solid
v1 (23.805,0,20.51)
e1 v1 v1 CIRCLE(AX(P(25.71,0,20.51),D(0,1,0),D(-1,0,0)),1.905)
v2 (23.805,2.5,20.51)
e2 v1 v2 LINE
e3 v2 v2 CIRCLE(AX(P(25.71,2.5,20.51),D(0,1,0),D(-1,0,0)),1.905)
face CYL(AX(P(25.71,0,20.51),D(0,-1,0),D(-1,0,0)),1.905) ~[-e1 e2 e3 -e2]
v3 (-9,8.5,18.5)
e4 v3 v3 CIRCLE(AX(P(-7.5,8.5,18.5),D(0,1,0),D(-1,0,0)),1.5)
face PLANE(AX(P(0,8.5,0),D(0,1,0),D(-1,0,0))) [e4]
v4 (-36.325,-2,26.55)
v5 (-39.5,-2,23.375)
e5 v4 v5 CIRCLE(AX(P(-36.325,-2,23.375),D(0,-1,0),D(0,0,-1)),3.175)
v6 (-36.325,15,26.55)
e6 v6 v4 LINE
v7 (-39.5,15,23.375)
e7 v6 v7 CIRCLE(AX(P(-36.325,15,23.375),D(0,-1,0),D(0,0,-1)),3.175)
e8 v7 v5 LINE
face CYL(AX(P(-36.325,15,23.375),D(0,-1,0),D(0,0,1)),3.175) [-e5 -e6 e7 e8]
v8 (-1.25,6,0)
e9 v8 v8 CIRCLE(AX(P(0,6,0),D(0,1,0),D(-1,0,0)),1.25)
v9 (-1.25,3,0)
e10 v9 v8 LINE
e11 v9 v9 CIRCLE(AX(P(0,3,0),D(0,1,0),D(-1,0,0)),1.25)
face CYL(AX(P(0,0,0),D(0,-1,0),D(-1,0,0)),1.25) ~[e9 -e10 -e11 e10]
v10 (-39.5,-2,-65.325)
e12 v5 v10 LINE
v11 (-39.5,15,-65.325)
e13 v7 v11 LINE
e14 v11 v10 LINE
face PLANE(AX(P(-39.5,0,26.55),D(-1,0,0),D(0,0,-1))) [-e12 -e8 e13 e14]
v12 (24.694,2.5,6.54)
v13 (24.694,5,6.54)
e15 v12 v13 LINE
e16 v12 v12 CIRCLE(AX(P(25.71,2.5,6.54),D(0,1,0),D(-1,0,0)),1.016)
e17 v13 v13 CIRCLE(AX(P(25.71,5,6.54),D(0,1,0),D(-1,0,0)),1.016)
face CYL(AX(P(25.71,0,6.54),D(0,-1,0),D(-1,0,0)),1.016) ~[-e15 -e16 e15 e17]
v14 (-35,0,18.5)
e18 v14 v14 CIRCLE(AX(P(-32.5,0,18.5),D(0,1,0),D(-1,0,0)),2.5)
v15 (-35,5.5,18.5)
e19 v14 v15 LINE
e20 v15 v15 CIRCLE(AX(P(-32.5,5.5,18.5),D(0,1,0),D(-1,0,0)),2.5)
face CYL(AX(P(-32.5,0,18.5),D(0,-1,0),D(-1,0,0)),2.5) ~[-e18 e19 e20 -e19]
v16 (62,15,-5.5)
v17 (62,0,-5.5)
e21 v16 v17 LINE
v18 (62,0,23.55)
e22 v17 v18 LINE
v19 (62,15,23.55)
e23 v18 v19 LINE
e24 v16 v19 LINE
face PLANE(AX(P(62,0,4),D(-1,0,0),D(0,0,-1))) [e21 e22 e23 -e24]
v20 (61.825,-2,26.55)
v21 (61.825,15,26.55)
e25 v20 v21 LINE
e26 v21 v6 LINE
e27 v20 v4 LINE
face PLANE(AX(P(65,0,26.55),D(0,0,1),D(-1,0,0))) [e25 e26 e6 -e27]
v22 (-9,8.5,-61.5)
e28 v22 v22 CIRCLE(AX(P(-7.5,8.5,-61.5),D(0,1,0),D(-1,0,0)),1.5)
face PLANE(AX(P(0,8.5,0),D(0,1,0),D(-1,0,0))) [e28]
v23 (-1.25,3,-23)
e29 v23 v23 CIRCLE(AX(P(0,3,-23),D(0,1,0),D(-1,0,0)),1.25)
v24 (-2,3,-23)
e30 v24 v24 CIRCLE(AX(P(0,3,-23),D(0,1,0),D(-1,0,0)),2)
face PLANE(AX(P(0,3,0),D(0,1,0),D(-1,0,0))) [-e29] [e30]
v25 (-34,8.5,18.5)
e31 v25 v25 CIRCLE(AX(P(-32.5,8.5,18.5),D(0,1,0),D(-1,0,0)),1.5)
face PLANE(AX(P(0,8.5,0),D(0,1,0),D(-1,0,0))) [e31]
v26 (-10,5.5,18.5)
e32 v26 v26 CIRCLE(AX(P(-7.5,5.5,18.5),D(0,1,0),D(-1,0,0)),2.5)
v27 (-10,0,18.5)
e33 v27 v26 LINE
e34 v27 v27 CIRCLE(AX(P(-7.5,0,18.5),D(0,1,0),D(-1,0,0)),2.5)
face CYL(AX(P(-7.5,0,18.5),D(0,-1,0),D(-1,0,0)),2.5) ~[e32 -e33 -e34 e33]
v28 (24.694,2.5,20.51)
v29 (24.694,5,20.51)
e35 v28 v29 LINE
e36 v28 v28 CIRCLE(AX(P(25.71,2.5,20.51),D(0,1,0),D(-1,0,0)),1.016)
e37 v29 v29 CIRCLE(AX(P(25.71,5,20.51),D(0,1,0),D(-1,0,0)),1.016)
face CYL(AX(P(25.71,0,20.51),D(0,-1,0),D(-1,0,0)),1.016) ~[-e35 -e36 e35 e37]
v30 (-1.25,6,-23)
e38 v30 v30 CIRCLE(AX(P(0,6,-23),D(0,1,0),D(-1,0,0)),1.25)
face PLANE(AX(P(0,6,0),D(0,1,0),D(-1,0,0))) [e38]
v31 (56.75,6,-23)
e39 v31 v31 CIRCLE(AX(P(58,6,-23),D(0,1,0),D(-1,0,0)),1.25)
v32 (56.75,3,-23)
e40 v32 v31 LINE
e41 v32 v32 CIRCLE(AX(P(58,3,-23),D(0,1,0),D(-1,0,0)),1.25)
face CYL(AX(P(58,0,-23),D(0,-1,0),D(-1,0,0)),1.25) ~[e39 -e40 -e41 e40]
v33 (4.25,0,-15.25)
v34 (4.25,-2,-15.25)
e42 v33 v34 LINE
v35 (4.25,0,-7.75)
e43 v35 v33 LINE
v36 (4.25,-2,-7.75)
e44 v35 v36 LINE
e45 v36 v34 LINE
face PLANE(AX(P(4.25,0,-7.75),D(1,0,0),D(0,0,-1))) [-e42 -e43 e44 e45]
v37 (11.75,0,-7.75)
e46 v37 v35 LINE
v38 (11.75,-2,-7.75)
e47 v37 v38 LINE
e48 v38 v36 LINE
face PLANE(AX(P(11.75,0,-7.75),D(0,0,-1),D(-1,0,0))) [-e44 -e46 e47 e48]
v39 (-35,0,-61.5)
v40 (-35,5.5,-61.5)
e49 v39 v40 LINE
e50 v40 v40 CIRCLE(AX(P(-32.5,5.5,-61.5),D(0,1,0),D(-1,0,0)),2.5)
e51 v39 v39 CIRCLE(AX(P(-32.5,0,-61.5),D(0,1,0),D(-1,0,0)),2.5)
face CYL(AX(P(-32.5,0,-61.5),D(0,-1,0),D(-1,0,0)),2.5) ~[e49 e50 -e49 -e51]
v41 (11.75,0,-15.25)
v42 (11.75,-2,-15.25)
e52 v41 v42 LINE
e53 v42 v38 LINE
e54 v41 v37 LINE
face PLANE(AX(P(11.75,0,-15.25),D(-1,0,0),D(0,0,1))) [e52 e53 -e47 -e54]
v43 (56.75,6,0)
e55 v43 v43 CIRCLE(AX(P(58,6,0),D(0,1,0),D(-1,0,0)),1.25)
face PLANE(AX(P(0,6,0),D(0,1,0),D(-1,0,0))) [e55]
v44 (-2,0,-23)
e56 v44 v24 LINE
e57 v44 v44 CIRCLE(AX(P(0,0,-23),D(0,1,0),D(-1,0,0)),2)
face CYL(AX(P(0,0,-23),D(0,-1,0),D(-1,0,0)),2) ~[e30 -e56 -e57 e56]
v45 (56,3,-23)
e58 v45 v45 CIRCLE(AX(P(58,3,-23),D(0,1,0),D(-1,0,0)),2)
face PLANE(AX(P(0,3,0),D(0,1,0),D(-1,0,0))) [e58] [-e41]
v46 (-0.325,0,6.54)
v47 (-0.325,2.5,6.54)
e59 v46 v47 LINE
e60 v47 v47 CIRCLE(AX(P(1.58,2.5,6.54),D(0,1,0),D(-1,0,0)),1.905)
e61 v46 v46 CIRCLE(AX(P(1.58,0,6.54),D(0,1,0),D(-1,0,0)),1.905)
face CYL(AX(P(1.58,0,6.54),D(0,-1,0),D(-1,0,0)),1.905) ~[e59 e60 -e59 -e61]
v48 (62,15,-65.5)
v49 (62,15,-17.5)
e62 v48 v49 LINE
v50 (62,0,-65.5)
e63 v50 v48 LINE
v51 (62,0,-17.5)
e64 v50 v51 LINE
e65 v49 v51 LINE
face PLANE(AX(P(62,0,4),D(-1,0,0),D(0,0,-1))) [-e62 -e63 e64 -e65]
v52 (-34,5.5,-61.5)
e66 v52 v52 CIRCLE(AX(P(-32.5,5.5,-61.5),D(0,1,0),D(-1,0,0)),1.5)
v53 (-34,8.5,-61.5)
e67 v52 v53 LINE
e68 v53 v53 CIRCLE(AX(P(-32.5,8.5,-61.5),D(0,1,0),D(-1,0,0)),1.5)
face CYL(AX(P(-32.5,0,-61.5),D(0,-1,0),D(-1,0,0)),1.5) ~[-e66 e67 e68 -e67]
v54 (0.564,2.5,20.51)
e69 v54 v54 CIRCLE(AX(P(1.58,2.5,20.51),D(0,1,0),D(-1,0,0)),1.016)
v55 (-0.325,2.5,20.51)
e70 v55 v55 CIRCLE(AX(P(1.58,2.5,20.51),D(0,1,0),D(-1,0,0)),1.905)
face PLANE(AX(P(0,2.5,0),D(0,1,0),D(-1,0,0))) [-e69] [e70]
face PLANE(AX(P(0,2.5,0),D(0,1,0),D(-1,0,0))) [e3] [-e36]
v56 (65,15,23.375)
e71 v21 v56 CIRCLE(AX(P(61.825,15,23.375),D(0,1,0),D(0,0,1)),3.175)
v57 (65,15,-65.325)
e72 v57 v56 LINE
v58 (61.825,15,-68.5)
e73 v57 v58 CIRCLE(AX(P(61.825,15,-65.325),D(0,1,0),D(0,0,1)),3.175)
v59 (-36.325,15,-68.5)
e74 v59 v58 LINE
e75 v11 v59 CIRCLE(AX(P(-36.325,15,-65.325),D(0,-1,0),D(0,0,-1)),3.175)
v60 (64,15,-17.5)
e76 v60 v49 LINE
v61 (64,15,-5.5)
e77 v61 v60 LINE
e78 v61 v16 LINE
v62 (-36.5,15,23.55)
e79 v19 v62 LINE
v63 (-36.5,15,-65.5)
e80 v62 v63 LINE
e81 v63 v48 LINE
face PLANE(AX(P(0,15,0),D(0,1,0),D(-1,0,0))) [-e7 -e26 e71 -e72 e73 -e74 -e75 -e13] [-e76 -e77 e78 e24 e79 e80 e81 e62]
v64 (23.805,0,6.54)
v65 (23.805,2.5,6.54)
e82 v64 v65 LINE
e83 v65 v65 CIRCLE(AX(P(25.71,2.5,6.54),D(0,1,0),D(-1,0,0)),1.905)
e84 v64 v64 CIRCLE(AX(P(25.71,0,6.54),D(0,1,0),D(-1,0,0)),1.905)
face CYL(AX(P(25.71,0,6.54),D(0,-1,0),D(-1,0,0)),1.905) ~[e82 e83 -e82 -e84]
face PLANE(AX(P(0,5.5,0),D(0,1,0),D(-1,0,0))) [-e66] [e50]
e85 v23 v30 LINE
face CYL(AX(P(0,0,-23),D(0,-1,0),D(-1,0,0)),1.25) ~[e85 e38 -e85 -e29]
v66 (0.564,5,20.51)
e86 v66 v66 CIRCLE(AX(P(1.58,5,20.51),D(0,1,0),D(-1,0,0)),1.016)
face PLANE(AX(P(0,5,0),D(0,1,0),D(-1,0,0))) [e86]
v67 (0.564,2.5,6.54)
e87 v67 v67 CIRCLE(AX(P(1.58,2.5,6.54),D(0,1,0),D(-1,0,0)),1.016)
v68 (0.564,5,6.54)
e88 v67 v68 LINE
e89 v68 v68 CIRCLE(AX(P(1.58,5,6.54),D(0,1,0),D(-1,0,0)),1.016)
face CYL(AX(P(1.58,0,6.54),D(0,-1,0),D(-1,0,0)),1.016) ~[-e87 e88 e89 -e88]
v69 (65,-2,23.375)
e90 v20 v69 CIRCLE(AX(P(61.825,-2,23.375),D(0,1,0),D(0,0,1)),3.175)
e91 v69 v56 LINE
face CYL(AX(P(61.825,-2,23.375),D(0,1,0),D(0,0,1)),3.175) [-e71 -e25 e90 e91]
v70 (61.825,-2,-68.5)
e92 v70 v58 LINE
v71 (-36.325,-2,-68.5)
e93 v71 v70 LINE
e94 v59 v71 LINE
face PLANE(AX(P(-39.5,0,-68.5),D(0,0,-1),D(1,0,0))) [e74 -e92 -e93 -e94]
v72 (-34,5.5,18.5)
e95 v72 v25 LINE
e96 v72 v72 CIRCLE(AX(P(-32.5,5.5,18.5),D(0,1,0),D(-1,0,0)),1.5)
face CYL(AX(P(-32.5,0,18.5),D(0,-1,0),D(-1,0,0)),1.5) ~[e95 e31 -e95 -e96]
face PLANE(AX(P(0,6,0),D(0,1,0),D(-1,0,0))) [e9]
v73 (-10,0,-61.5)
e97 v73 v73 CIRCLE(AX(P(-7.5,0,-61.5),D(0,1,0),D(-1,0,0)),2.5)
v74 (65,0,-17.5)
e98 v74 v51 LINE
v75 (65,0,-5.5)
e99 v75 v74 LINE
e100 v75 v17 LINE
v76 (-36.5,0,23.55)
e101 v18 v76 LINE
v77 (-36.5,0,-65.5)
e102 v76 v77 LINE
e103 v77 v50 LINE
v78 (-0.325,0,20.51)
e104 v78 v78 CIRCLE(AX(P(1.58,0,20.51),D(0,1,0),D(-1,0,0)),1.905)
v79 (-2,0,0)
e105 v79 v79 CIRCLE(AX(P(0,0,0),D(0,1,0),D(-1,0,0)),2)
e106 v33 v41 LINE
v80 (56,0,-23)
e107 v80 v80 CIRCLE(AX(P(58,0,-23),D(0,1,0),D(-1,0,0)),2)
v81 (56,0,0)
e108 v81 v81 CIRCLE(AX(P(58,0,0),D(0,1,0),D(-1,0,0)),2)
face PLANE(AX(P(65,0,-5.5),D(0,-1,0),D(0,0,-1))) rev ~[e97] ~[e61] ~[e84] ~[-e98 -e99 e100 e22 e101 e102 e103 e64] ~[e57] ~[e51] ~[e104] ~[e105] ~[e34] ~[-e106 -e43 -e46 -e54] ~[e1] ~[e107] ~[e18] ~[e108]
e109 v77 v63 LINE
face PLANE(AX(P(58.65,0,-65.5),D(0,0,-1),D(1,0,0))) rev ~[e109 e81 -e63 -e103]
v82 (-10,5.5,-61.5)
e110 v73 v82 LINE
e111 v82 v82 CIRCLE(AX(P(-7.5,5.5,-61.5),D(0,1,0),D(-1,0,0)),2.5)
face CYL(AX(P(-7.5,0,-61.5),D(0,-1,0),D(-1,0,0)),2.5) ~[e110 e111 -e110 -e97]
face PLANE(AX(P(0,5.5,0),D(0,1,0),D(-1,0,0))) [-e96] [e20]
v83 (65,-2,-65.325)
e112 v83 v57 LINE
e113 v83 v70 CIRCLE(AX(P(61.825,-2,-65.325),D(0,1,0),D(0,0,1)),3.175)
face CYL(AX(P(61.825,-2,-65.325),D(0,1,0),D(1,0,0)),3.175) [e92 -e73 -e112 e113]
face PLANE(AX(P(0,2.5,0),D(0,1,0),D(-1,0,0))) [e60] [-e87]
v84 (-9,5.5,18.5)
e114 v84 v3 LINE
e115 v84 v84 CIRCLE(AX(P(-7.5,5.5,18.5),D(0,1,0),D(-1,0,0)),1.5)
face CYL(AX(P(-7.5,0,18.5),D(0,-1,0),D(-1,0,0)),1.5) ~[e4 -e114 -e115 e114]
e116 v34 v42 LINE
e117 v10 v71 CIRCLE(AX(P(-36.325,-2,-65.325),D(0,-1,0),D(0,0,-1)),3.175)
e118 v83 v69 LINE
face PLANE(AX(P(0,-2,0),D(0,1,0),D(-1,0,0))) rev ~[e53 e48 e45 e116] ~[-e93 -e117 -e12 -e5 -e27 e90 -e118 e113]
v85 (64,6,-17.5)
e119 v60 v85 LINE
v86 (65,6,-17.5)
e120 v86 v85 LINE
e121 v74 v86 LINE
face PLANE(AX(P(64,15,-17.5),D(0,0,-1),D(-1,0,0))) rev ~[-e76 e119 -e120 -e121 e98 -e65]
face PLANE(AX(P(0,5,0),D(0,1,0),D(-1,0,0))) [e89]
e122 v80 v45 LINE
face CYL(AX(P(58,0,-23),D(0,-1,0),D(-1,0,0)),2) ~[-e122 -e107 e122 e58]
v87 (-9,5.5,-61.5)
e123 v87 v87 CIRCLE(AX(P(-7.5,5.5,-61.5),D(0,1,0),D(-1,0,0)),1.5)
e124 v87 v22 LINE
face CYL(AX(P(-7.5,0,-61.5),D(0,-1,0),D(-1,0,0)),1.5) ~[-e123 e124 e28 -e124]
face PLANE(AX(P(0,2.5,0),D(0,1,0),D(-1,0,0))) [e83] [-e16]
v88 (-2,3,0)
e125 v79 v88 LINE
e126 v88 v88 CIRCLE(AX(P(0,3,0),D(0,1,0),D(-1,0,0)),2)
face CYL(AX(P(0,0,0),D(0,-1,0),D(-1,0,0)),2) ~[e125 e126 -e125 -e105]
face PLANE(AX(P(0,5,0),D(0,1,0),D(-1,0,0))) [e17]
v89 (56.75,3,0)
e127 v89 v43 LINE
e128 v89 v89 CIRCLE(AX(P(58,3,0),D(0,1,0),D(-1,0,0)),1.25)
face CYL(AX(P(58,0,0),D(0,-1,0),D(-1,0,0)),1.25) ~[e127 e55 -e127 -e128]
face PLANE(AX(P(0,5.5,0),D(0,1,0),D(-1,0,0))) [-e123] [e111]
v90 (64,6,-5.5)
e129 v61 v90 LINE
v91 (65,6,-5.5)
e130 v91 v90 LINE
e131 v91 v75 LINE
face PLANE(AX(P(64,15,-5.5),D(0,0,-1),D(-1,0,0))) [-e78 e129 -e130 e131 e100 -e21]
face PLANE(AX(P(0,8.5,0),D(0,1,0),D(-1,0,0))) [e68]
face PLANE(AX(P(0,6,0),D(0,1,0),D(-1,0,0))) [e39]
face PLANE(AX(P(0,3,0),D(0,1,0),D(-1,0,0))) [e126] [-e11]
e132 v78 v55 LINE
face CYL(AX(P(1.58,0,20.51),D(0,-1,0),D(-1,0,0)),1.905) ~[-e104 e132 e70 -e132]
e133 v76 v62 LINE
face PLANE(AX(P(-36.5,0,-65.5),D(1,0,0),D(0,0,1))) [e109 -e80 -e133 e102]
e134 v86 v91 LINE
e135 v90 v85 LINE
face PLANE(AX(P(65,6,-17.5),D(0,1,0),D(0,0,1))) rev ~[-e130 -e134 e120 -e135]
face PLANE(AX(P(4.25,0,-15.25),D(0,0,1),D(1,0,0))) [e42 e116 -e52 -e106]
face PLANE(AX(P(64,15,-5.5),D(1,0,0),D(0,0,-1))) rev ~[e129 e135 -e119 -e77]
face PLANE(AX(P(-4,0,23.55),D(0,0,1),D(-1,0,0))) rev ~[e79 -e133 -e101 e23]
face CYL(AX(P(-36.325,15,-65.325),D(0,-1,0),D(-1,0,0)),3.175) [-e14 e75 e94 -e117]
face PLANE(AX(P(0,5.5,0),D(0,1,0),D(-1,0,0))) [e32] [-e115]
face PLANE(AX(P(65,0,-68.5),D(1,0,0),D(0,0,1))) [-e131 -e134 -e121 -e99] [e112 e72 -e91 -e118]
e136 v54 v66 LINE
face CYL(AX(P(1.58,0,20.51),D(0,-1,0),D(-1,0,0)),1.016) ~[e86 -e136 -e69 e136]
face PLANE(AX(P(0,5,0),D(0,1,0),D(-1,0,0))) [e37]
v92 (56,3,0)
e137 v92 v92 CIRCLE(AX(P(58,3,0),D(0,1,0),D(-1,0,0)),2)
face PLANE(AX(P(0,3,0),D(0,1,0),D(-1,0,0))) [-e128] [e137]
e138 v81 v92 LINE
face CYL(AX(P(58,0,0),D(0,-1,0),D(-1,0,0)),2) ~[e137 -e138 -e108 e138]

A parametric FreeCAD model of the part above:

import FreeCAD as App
import Part
import Sketcher


def edges_at(feature, points):
    """Names of the edges that pass closest to the given points."""
    edges = feature.Shape.Edges
    near = lambda p: min(range(len(edges)), key=lambda i: edges[i].distToShape(Part.Vertex(*p))[0])
    return sorted({f"Edge{near(p) + 1}" for p in points})

doc = App.newDocument("Part")
body = doc.addObject("PartDesign::Body", "Body")

# Sketch on XZ plane
sketch1 = body.newObject("Sketcher::SketchObject", "Sketch")
sketch1.AttachmentSupport = (doc.getObject("XZ_Plane"), [""])
sketch1.MapMode = "FlatFace"
sketch1.addGeometry([
    Part.LineSegment(App.Vector(-40, 27, 0), App.Vector(65, 27, 0)),
    Part.LineSegment(App.Vector(65, 27, 0), App.Vector(65, -68, 0)),
    Part.LineSegment(App.Vector(65, -68, 0), App.Vector(-40, -68, 0)),
    Part.LineSegment(App.Vector(-40, -68, 0), App.Vector(-40, 27, 0)),
], False)
sketch1.addConstraint([
    Sketcher.Constraint("Coincident", 0, 2, 1, 1),
    Sketcher.Constraint("Coincident", 1, 2, 2, 1),
    Sketcher.Constraint("Coincident", 2, 2, 3, 1),
    Sketcher.Constraint("Coincident", 3, 2, 0, 1),
    Sketcher.Constraint("Horizontal", 0),
    Sketcher.Constraint("Vertical", 1),
    Sketcher.Constraint("Horizontal", 2),
    Sketcher.Constraint("Vertical", 3),
    Sketcher.Constraint("DistanceX", -1, 1, 0, 2, 65.0),
    Sketcher.Constraint("DistanceX", 0, 1, 0, 2, 104.5),
    Sketcher.Constraint("DistanceY", 1, 2, 1, 1, 95.05),
    Sketcher.Constraint("DistanceY", 1, 2, -1, 1, 68.5),
])
pad1 = body.newObject("PartDesign::Pad", "Pad")
pad1.Profile = sketch1
pad1.Length = 2

# Sketch on XZ plane
sketch2 = body.newObject("Sketcher::SketchObject", "Sketch001")
sketch2.AttachmentSupport = (doc.getObject("XZ_Plane"), [""])
sketch2.MapMode = "FlatFace"
sketch2.addGeometry([
    Part.LineSegment(App.Vector(-40, 27, 0), App.Vector(65, 27, 0)),  # 0
    Part.LineSegment(App.Vector(65, 27, 0), App.Vector(65, -68, 0)),  # 1
    Part.LineSegment(App.Vector(65, -68, 0), App.Vector(-40, -68, 0)),  # 2
    Part.LineSegment(App.Vector(-40, -68, 0), App.Vector(-40, 27, 0)),  # 3
    Part.LineSegment(App.Vector(62, -66, 0), App.Vector(62, 24, 0)),  # 4
    Part.LineSegment(App.Vector(62, 24, 0), App.Vector(-36, 24, 0)),  # 5
    Part.LineSegment(App.Vector(-36, 24, 0), App.Vector(-36, -66, 0)),  # 6
    Part.LineSegment(App.Vector(-36, -66, 0), App.Vector(62, -66, 0)),  # 7
], False)
sketch2.addConstraint([
    Sketcher.Constraint("Coincident", 0, 2, 1, 1),
    Sketcher.Constraint("Coincident", 1, 2, 2, 1),
    Sketcher.Constraint("Coincident", 2, 2, 3, 1),
    Sketcher.Constraint("Coincident", 3, 2, 0, 1),
    Sketcher.Constraint("Coincident", 4, 2, 5, 1),
    Sketcher.Constraint("Coincident", 5, 2, 6, 1),
    Sketcher.Constraint("Coincident", 6, 2, 7, 1),
    Sketcher.Constraint("Coincident", 7, 2, 4, 1),
    Sketcher.Constraint("Horizontal", 0),
    Sketcher.Constraint("Vertical", 1),
    Sketcher.Constraint("Horizontal", 2),
    Sketcher.Constraint("Vertical", 3),
    Sketcher.Constraint("Vertical", 4),
    Sketcher.Constraint("Horizontal", 5),
    Sketcher.Constraint("Vertical", 6),
    Sketcher.Constraint("Horizontal", 7),
    Sketcher.Constraint("DistanceX", -1, 1, 0, 2, 65.0),
    Sketcher.Constraint("DistanceX", 4, 2, 0, 2, 3.0),
    Sketcher.Constraint("DistanceY", 4, 2, 0, 2, 3.0),
    Sketcher.Constraint("DistanceX", 3, 2, 5, 2, 3.0),
    Sketcher.Constraint("DistanceY", 2, 2, 6, 2, 3.0),
    Sketcher.Constraint("DistanceX", 0, 1, 0, 2, 104.5),
    Sketcher.Constraint("DistanceY", 1, 2, 1, 1, 95.05),
    Sketcher.Constraint("DistanceY", 1, 2, -1, 1, 68.5),
])
pad2 = body.newObject("PartDesign::Pad", "Pad001")
pad2.Profile = sketch2
pad2.Length = 15
pad2.Reversed = True

# Sketch on XZ plane
sketch3 = body.newObject("Sketcher::SketchObject", "Sketch002")
sketch3.AttachmentSupport = (doc.getObject("XZ_Plane"), [""])
sketch3.MapMode = "FlatFace"
sketch3.addGeometry([
    Part.LineSegment(App.Vector(4, -8, 0), App.Vector(12, -8, 0)),
    Part.LineSegment(App.Vector(12, -8, 0), App.Vector(12, -15, 0)),
    Part.LineSegment(App.Vector(12, -15, 0), App.Vector(4, -15, 0)),
    Part.LineSegment(App.Vector(4, -15, 0), App.Vector(4, -8, 0)),
], False)
sketch3.addConstraint([
    Sketcher.Constraint("Coincident", 0, 2, 1, 1),
    Sketcher.Constraint("Coincident", 1, 2, 2, 1),
    Sketcher.Constraint("Coincident", 2, 2, 3, 1),
    Sketcher.Constraint("Coincident", 3, 2, 0, 1),
    Sketcher.Constraint("Horizontal", 0),
    Sketcher.Constraint("Vertical", 1),
    Sketcher.Constraint("Horizontal", 2),
    Sketcher.Constraint("Vertical", 3),
    Sketcher.Constraint("Equal", 2, 1),
    Sketcher.Constraint("DistanceX", 0, 1, 0, 2, 7.5),
    Sketcher.Constraint("DistanceX", -1, 1, 0, 2, 11.75),
    Sketcher.Constraint("DistanceY", 0, 2, -1, 1, 7.75),
])
pocket1 = body.newObject("PartDesign::Pocket", "Pocket")
pocket1.Profile = sketch3
pocket1.Length = 2
pocket1.Reversed = True

# Sketch on XZ plane
sketch4 = body.newObject("Sketcher::SketchObject", "Sketch003")
sketch4.AttachmentSupport = (doc.getObject("XZ_Plane"), [""])
sketch4.MapMode = "FlatFace"
sketch4.addGeometry([
    Part.Circle(App.Vector(-32.5, 18.5, 0), App.Vector(0, 0, 1), 2.5),  # 0
    Part.Circle(App.Vector(-32.5, 18.5, 0), App.Vector(0, 0, 1), 1.5),  # 1
    Part.Circle(App.Vector(-7.5, 18.5, 0), App.Vector(0, 0, 1), 2.5),  # 2
    Part.Circle(App.Vector(-7.5, 18.5, 0), App.Vector(0, 0, 1), 1.5),  # 3
    Part.Circle(App.Vector(-32.5, -61.5, 0), App.Vector(0, 0, 1), 2.5),  # 4
    Part.Circle(App.Vector(-32.5, -61.5, 0), App.Vector(0, 0, 1), 1.5),  # 5
    Part.Circle(App.Vector(-7.5, -61.5, 0), App.Vector(0, 0, 1), 2.5),  # 6
    Part.Circle(App.Vector(-7.5, -61.5, 0), App.Vector(0, 0, 1), 1.5),  # 7
], False)
sketch4.addConstraint([
    Sketcher.Constraint("Coincident", 1, 3, 0, 3),
    Sketcher.Constraint("Coincident", 3, 3, 2, 3),
    Sketcher.Constraint("Coincident", 5, 3, 4, 3),
    Sketcher.Constraint("Coincident", 7, 3, 6, 3),
    Sketcher.Constraint("Equal", 0, 2),
    Sketcher.Constraint("Equal", 1, 3),
    Sketcher.Constraint("Equal", 2, 4),
    Sketcher.Constraint("Equal", 3, 5),
    Sketcher.Constraint("Equal", 4, 6),
    Sketcher.Constraint("Equal", 5, 7),
    Sketcher.Constraint("Horizontal", 1, 3, 2, 3),
    Sketcher.Constraint("Horizontal", 5, 3, 6, 3),
    Sketcher.Constraint("Vertical", 1, 3, 4, 3),
    Sketcher.Constraint("Vertical", 3, 3, 6, 3),
    Sketcher.Constraint("Diameter", 0, 5.0),
    Sketcher.Constraint("Diameter", 1, 3.0),
    Sketcher.Constraint("DistanceX", 0, 3, 2, 3, 25.0),
    Sketcher.Constraint("DistanceY", 4, 3, 0, 3, 80.0),
    Sketcher.Constraint("DistanceX", 2, 3, -1, 1, 7.5),
    Sketcher.Constraint("DistanceY", -1, 1, 0, 3, 18.5),
])
pad3 = body.newObject("PartDesign::Pad", "Pad002")
pad3.Profile = sketch4
pad3.Length = 5.5
pad3.Reversed = True

# Sketch on XZ plane
sketch5 = body.newObject("Sketcher::SketchObject", "Sketch004")
sketch5.AttachmentSupport = (doc.getObject("XZ_Plane"), [""])
sketch5.MapMode = "FlatFace"
sketch5.addGeometry([
    Part.Circle(App.Vector(-32.5, 18.5, 0), App.Vector(0, 0, 1), 1.5),
    Part.Circle(App.Vector(-7.5, 18.5, 0), App.Vector(0, 0, 1), 1.5),
    Part.Circle(App.Vector(-7.5, -61.5, 0), App.Vector(0, 0, 1), 1.5),
    Part.Circle(App.Vector(-32.5, -61.5, 0), App.Vector(0, 0, 1), 1.5),
], False)
sketch5.addConstraint([
    Sketcher.Constraint("Equal", 0, 1),
    Sketcher.Constraint("Equal", 1, 2),
    Sketcher.Constraint("Equal", 2, 3),
    Sketcher.Constraint("Horizontal", 0, 3, 1, 3),
    Sketcher.Constraint("Horizontal", 2, 3, 3, 3),
    Sketcher.Constraint("Vertical", 1, 3, 2, 3),
    Sketcher.Constraint("Vertical", 0, 3, 3, 3),
    Sketcher.Constraint("Diameter", 0, 3.0),
    Sketcher.Constraint("DistanceX", 0, 3, 1, 3, 25.0),
    Sketcher.Constraint("DistanceY", 2, 3, 1, 3, 80.0),
    Sketcher.Constraint("DistanceX", 1, 3, -1, 1, 7.5),
    Sketcher.Constraint("DistanceY", -1, 1, 0, 3, 18.5),
])
pad4 = body.newObject("PartDesign::Pad", "Pad003")
pad4.Profile = sketch5
pad4.Length = 8.5
pad4.Reversed = True

# Sketch on XZ plane
sketch6 = body.newObject("Sketcher::SketchObject", "Sketch005")
sketch6.AttachmentSupport = (doc.getObject("XZ_Plane"), [""])
sketch6.MapMode = "FlatFace"
sketch6.addGeometry([
    Part.Circle(App.Vector(0, 0, 0), App.Vector(0, 0, 1), 2),  # 0
    Part.Circle(App.Vector(0, 0, 0), App.Vector(0, 0, 1), 1.2),  # 1
    Part.Circle(App.Vector(0, -23, 0), App.Vector(0, 0, 1), 2),  # 2
    Part.Circle(App.Vector(0, -23, 0), App.Vector(0, 0, 1), 1.2),  # 3
    Part.Circle(App.Vector(58, -23, 0), App.Vector(0, 0, 1), 2),  # 4
    Part.Circle(App.Vector(58, -23, 0), App.Vector(0, 0, 1), 1.2),  # 5
    Part.Circle(App.Vector(58, 0, 0), App.Vector(0, 0, 1), 2),  # 6
    Part.Circle(App.Vector(58, 0, 0), App.Vector(0, 0, 1), 1.2),  # 7
], False)
sketch6.addConstraint([
    Sketcher.Constraint("Coincident", 0, 3, -1, 1),
    Sketcher.Constraint("Coincident", 1, 3, -1, 1),
    Sketcher.Constraint("Coincident", 3, 3, 2, 3),
    Sketcher.Constraint("Coincident", 5, 3, 4, 3),
    Sketcher.Constraint("Coincident", 7, 3, 6, 3),
    Sketcher.Constraint("Equal", 0, 2),
    Sketcher.Constraint("Equal", 1, 3),
    Sketcher.Constraint("Equal", 2, 4),
    Sketcher.Constraint("Equal", 3, 5),
    Sketcher.Constraint("Equal", 4, 6),
    Sketcher.Constraint("Equal", 5, 7),
    Sketcher.Constraint("PointOnObject", 2, 3, -2),
    Sketcher.Constraint("PointOnObject", 6, 3, -1),
    Sketcher.Constraint("Horizontal", 3, 3, 4, 3),
    Sketcher.Constraint("Vertical", 5, 3, 6, 3),
    Sketcher.Constraint("Diameter", 0, 4.0),
    Sketcher.Constraint("Diameter", 1, 2.5),
    Sketcher.Constraint("DistanceY", 2, 3, -1, 1, 23.0),
    Sketcher.Constraint("DistanceX", -1, 1, 4, 3, 58.0),
])
pad5 = body.newObject("PartDesign::Pad", "Pad004")
pad5.Profile = sketch6
pad5.Length = 3
pad5.Reversed = True

# Sketch on XZ plane
sketch7 = body.newObject("Sketcher::SketchObject", "Sketch006")
sketch7.AttachmentSupport = (doc.getObject("XZ_Plane"), [""])
sketch7.MapMode = "FlatFace"
sketch7.addGeometry([
    Part.Circle(App.Vector(0, 0, 0), App.Vector(0, 0, 1), 1.2),
    Part.Circle(App.Vector(58, 0, 0), App.Vector(0, 0, 1), 1.2),
    Part.Circle(App.Vector(58, -23, 0), App.Vector(0, 0, 1), 1.2),
    Part.Circle(App.Vector(0, -23, 0), App.Vector(0, 0, 1), 1.2),
], False)
sketch7.addConstraint([
    Sketcher.Constraint("Coincident", 0, 3, -1, 1),
    Sketcher.Constraint("Equal", 0, 1),
    Sketcher.Constraint("Equal", 1, 2),
    Sketcher.Constraint("Equal", 2, 3),
    Sketcher.Constraint("PointOnObject", 1, 3, -1),
    Sketcher.Constraint("PointOnObject", 3, 3, -2),
    Sketcher.Constraint("Horizontal", 2, 3, 3, 3),
    Sketcher.Constraint("Vertical", 1, 3, 2, 3),
    Sketcher.Constraint("Diameter", 0, 2.5),
    Sketcher.Constraint("DistanceX", -1, 1, 1, 3, 58.0),
    Sketcher.Constraint("DistanceY", 2, 3, -1, 1, 23.0),
])
pad6 = body.newObject("PartDesign::Pad", "Pad005")
pad6.Profile = sketch7
pad6.Length = 6
pad6.Reversed = True

# Sketch on XZ plane
sketch8 = body.newObject("Sketcher::SketchObject", "Sketch007")
sketch8.AttachmentSupport = (doc.getObject("XZ_Plane"), [""])
sketch8.MapMode = "FlatFace"
sketch8.addGeometry([
    Part.Circle(App.Vector(1.6, 20.5, 0), App.Vector(0, 0, 1), 1.9),  # 0
    Part.Circle(App.Vector(1.6, 20.5, 0), App.Vector(0, 0, 1), 1),  # 1
    Part.Circle(App.Vector(1.6, 6.5, 0), App.Vector(0, 0, 1), 1.9),  # 2
    Part.Circle(App.Vector(1.6, 6.5, 0), App.Vector(0, 0, 1), 1),  # 3
    Part.Circle(App.Vector(25.7, 6.5, 0), App.Vector(0, 0, 1), 1.9),  # 4
    Part.Circle(App.Vector(25.7, 6.5, 0), App.Vector(0, 0, 1), 1),  # 5
    Part.Circle(App.Vector(25.7, 20.5, 0), App.Vector(0, 0, 1), 1.9),  # 6
    Part.Circle(App.Vector(25.7, 20.5, 0), App.Vector(0, 0, 1), 1),  # 7
], False)
sketch8.addConstraint([
    Sketcher.Constraint("Coincident", 1, 3, 0, 3),
    Sketcher.Constraint("Coincident", 3, 3, 2, 3),
    Sketcher.Constraint("Coincident", 5, 3, 4, 3),
    Sketcher.Constraint("Coincident", 7, 3, 6, 3),
    Sketcher.Constraint("Equal", 0, 2),
    Sketcher.Constraint("Equal", 1, 3),
    Sketcher.Constraint("Equal", 2, 4),
    Sketcher.Constraint("Equal", 3, 5),
    Sketcher.Constraint("Equal", 4, 6),
    Sketcher.Constraint("Equal", 5, 7),
    Sketcher.Constraint("Horizontal", 3, 3, 4, 3),
    Sketcher.Constraint("Horizontal", 1, 3, 6, 3),
    Sketcher.Constraint("Vertical", 1, 3, 2, 3),
    Sketcher.Constraint("Vertical", 5, 3, 6, 3),
    Sketcher.Constraint("Diameter", 0, 3.81),
    Sketcher.Constraint("Diameter", 1, 2.032),
    Sketcher.Constraint("DistanceX", -1, 1, 0, 3, 1.58),
    Sketcher.Constraint("DistanceY", -1, 1, 0, 3, 20.51),
    Sketcher.Constraint("DistanceY", -1, 1, 2, 3, 6.54),
    Sketcher.Constraint("DistanceX", -1, 1, 4, 3, 25.71),
])
pad7 = body.newObject("PartDesign::Pad", "Pad006")
pad7.Profile = sketch8
pad7.Length = 2.5
pad7.Reversed = True

# Sketch on XZ plane
sketch9 = body.newObject("Sketcher::SketchObject", "Sketch008")
sketch9.AttachmentSupport = (doc.getObject("XZ_Plane"), [""])
sketch9.MapMode = "FlatFace"
sketch9.addGeometry([
    Part.Circle(App.Vector(1.6, 20.5, 0), App.Vector(0, 0, 1), 1),
    Part.Circle(App.Vector(25.7, 20.5, 0), App.Vector(0, 0, 1), 1),
    Part.Circle(App.Vector(25.7, 6.5, 0), App.Vector(0, 0, 1), 1),
    Part.Circle(App.Vector(1.6, 6.5, 0), App.Vector(0, 0, 1), 1),
], False)
sketch9.addConstraint([
    Sketcher.Constraint("Equal", 0, 1),
    Sketcher.Constraint("Equal", 1, 2),
    Sketcher.Constraint("Equal", 2, 3),
    Sketcher.Constraint("Horizontal", 0, 3, 1, 3),
    Sketcher.Constraint("Horizontal", 2, 3, 3, 3),
    Sketcher.Constraint("Vertical", 1, 3, 2, 3),
    Sketcher.Constraint("Vertical", 0, 3, 3, 3),
    Sketcher.Constraint("Diameter", 0, 2.032),
    Sketcher.Constraint("DistanceX", -1, 1, 0, 3, 1.58),
    Sketcher.Constraint("DistanceY", -1, 1, 0, 3, 20.51),
    Sketcher.Constraint("DistanceX", -1, 1, 1, 3, 25.71),
    Sketcher.Constraint("DistanceY", -1, 1, 2, 3, 6.54),
])
pad8 = body.newObject("PartDesign::Pad", "Pad007")
pad8.Profile = sketch9
pad8.Length = 5
pad8.Reversed = True

# Sketch on YZ plane
sketch10 = body.newObject("Sketcher::SketchObject", "Sketch009")
sketch10.AttachmentSupport = (doc.getObject("YZ_Plane"), [""])
sketch10.MapMode = "FlatFace"
sketch10.AttachmentOffset = App.Placement(App.Vector(0, 0, 65), App.Rotation())
sketch10.addGeometry([
    Part.LineSegment(App.Vector(0, -18, 0), App.Vector(6, -18, 0)),
    Part.LineSegment(App.Vector(6, -18, 0), App.Vector(6, -6, 0)),
    Part.LineSegment(App.Vector(6, -6, 0), App.Vector(0, -6, 0)),
    Part.LineSegment(App.Vector(0, -6, 0), App.Vector(0, -18, 0)),
], False)
sketch10.addConstraint([
    Sketcher.Constraint("Coincident", 0, 2, 1, 1),
    Sketcher.Constraint("Coincident", 1, 2, 2, 1),
    Sketcher.Constraint("Coincident", 2, 2, 3, 1),
    Sketcher.Constraint("Coincident", 3, 2, 0, 1),
    Sketcher.Constraint("Horizontal", 0),
    Sketcher.Constraint("Vertical", 1),
    Sketcher.Constraint("Horizontal", 2),
    Sketcher.Constraint("Vertical", 3),
    Sketcher.Constraint("PointOnObject", 2, 2, -2),
    Sketcher.Constraint("DistanceY", 1, 1, 1, 2, 12.0),
    Sketcher.Constraint("DistanceX", 0, 1, 0, 2, 6.0),
    Sketcher.Constraint("DistanceY", 0, 2, -1, 1, 17.5),
])
pocket2 = body.newObject("PartDesign::Pocket", "Pocket001")
pocket2.Profile = sketch10
pocket2.Length = 3

# Sketch on XZ plane
sketch11 = body.newObject("Sketcher::SketchObject", "Sketch010")
sketch11.AttachmentSupport = (doc.getObject("XZ_Plane"), [""])
sketch11.MapMode = "FlatFace"
sketch11.AttachmentOffset = App.Placement(App.Vector(0, 0, -15), App.Rotation())
sketch11.addGeometry([
    Part.LineSegment(App.Vector(64, -17.5, 0), App.Vector(62, -17.5, 0)),
    Part.LineSegment(App.Vector(62, -17.5, 0), App.Vector(62, -5.5, 0)),
    Part.LineSegment(App.Vector(62, -5.5, 0), App.Vector(64, -5.5, 0)),
    Part.LineSegment(App.Vector(64, -5.5, 0), App.Vector(64, -17.5, 0)),
], False)
sketch11.addConstraint([
    Sketcher.Constraint("Coincident", 0, 2, 1, 1),
    Sketcher.Constraint("Coincident", 1, 2, 2, 1),
    Sketcher.Constraint("Coincident", 2, 2, 3, 1),
    Sketcher.Constraint("Coincident", 3, 2, 0, 1),
    Sketcher.Constraint("Horizontal", 0),
    Sketcher.Constraint("Vertical", 1),
    Sketcher.Constraint("Horizontal", 2),
    Sketcher.Constraint("Vertical", 3),
    Sketcher.Constraint("DistanceX", 0, 2, 0, 1, 2.0),
    Sketcher.Constraint("DistanceY", 1, 1, 1, 2, 12.0),
    Sketcher.Constraint("DistanceX", -1, 1, 0, 2, 62.0),
    Sketcher.Constraint("DistanceY", 0, 2, -1, 1, 17.5),
])
pocket3 = body.newObject("PartDesign::Pocket", "Pocket002")
pocket3.Profile = sketch11
pocket3.Length = 9
pocket3.Reversed = True
doc.recompute()

fillet = body.newObject("PartDesign::Fillet", "Fillet")
fillet.Base = (pocket3, edges_at(pocket3, [
    (65, 6.5, 26.55),
    (65, 6.5, -68.5),
    (-39.5, 6.5, -68.5),
    (-39.5, 6.5, 26.55),
]))
fillet.Radius = 3.175

doc.recompute()
